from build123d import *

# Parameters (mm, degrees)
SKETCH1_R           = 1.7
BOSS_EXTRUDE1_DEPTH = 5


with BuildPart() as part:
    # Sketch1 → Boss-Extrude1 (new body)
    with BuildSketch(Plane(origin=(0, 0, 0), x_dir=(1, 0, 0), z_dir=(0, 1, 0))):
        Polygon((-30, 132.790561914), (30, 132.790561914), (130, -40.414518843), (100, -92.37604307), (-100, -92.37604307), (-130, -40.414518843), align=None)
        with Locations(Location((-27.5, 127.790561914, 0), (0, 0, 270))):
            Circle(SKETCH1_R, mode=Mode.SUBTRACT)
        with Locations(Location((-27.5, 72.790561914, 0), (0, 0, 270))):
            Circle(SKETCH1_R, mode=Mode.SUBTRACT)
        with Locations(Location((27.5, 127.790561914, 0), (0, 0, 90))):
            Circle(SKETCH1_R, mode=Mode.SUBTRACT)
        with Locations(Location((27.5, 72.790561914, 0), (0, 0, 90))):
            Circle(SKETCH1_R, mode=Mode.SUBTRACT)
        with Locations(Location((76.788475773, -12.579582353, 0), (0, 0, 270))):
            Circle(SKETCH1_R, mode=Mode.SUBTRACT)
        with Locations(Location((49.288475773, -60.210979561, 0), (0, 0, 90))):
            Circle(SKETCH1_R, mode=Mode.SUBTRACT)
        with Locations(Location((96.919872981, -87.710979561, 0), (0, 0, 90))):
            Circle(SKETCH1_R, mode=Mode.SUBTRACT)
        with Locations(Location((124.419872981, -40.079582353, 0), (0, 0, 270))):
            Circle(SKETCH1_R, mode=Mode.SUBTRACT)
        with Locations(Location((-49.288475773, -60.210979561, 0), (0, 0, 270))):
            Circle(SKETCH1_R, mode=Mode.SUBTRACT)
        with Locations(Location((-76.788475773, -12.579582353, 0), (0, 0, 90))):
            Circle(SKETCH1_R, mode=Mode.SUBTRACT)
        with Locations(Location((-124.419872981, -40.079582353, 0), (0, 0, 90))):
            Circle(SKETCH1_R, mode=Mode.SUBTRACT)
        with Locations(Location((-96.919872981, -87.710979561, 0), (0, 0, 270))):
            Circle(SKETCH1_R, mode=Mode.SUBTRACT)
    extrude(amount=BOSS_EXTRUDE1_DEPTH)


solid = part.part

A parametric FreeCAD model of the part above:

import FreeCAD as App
import Part
import Sketcher
from FreeCAD import Vector
Q = App.Units.Quantity


def add_polygon(sketch, points):
    """Adds a closed chain of lines whose ends are joined by coincident constraints."""
    first, n = sketch.GeometryCount, len(points)
    for a, b in zip(points, points[1:] + points[:1]):
        sketch.addGeometry(Part.LineSegment(App.Vector(*a, 0), App.Vector(*b, 0)), False)
    for i in range(n):
        sketch.addConstraint(Sketcher.Constraint("Coincident", first + i, 2, first + (i + 1) % n, 1))

doc = App.newDocument("Part")
body = doc.addObject("PartDesign::Body", "Body")

sketch1 = body.newObject("Sketcher::SketchObject", "Sketch")
sketch1.AttachmentSupport = (doc.getObject("XZ_Plane"), [""])
sketch1.MapMode = "FlatFace"
add_polygon(sketch1, [(30, -132.790562), (-30, -132.790562), (-130, 40.414519), (-100, 92.376043), (100, 92.376043), (130, 40.414519)])
sketch1.addGeometry(Part.Circle(Vector(96.919873, 87.71098, 0), Vector(0, 0, 1), 1.7), False)
sketch1.addGeometry(Part.Circle(Vector(124.419873, 40.079582, 0), Vector(0, 0, 1), 1.7), False)
sketch1.addGeometry(Part.Circle(Vector(49.288476, 60.21098, 0), Vector(0, 0, 1), 1.7), False)
sketch1.addGeometry(Part.Circle(Vector(76.788476, 12.579582, 0), Vector(0, 0, 1), 1.7), False)
sketch1.addGeometry(Part.Circle(Vector(-49.288476, 60.21098, 0), Vector(0, 0, 1), 1.7), False)
sketch1.addGeometry(Part.Circle(Vector(-96.919873, 87.71098, 0), Vector(0, 0, 1), 1.7), False)
sketch1.addGeometry(Part.Circle(Vector(-124.419873, 40.079582, 0), Vector(0, 0, 1), 1.7), False)
sketch1.addGeometry(Part.Circle(Vector(-76.788476, 12.579582, 0), Vector(0, 0, 1), 1.7), False)
sketch1.addGeometry(Part.Circle(Vector(27.5, -72.790562, 0), Vector(0, 0, 1), 1.7), False)
sketch1.addGeometry(Part.Circle(Vector(27.5, -127.790562, 0), Vector(0, 0, 1), 1.7), False)
sketch1.addGeometry(Part.Circle(Vector(-27.5, -72.790562, 0), Vector(0, 0, 1), 1.7), False)
sketch1.addGeometry(Part.Circle(Vector(-27.5, -127.790562, 0), Vector(0, 0, 1), 1.7), False)
sketch1.addConstraint([
    Sketcher.Constraint("Horizontal", 0),
    Sketcher.Constraint("Horizontal", 3),
    Sketcher.Constraint("Equal", 6, 7),
    Sketcher.Constraint("Equal", 7, 8),
    Sketcher.Constraint("Equal", 8, 9),
    Sketcher.Constraint("Equal", 9, 10),
    Sketcher.Constraint("Equal", 10, 11),
    Sketcher.Constraint("Equal", 11, 12),
    Sketcher.Constraint("Equal", 12, 13),
    Sketcher.Constraint("Equal", 13, 14),
    Sketcher.Constraint("Equal", 14, 15),
    Sketcher.Constraint("Equal", 15, 16),
    Sketcher.Constraint("Equal", 16, 17),
    Sketcher.Constraint("Symmetric", 8, 3, 10, 3, -2),
    Sketcher.Constraint("Symmetric", 6, 3, 11, 3, -2),
    Sketcher.Constraint("Symmetric", 7, 3, 12, 3, -2),
    Sketcher.Constraint("Symmetric", 9, 3, 13, 3, -2),
    Sketcher.Constraint("Symmetric", 14, 3, 16, 3, -2),
    Sketcher.Constraint("Symmetric", 15, 3, 17, 3, -2),
    Sketcher.Constraint("Symmetric", 1, 2, 4, 2, -2),
    Sketcher.Constraint("Parallel", 1, 4),
    Sketcher.Constraint("Parallel", 2, 5),
    Sketcher.Constraint("Vertical", 14, 3, 15, 3),
    Sketcher.Constraint("Equal", 2, 4),
    Sketcher.Constraint("Diameter", 6, Q("3.4 mm")),
    Sketcher.Constraint("DistanceX", 0, 2, 0, 1, Q("60 mm")),
    Sketcher.Constraint("DistanceX", 3, 1, 3, 2, Q("200 mm")),
    Sketcher.Constraint("Angle", 1, Q("120 deg")),
    Sketcher.Constraint("Distance", 1, Q("200 mm")),
    Sketcher.Constraint("DistanceY", 15, 3, 14, 3, Q("55 mm")),
    Sketcher.Constraint("DistanceX", 16, 3, 14, 3, Q("55 mm")),
    Sketcher.Constraint("DistanceY", 0, 2, 17, 3, Q("5 mm")),
    Sketcher.Constraint("DistanceX", 6, 3, 7, 3, Q("27.5 mm")),
    Sketcher.Constraint("DistanceY", 8, 3, 6, 3, Q("27.5 mm")),
    Sketcher.Constraint("DistanceY", 9, 3, 7, 3, Q("27.5 mm")),
    Sketcher.Constraint("DistanceX", 8, 3, 9, 3, Q("27.5 mm")),
    Sketcher.Constraint("DistanceY", -1, 1, 6, 3, Q("87.71098 mm")),
    Sketcher.Constraint("DistanceY", 14, 3, -1, 1, Q("72.790562 mm")),
    Sketcher.Constraint("DistanceX", 10, 3, 8, 3, Q("98.576952 mm")),
    Sketcher.Constraint("DistanceX", 10, 3, 6, 3, Q("146.208349 mm")),
    Sketcher.Constraint("DistanceY", 12, 3, 2, 2, Q("52.296461 mm")),
])
pad1 = body.newObject("PartDesign::Pad", "Pad")
pad1.Profile = sketch1
pad1.Length = 5
pad1.Reversed = True

doc.recompute()
